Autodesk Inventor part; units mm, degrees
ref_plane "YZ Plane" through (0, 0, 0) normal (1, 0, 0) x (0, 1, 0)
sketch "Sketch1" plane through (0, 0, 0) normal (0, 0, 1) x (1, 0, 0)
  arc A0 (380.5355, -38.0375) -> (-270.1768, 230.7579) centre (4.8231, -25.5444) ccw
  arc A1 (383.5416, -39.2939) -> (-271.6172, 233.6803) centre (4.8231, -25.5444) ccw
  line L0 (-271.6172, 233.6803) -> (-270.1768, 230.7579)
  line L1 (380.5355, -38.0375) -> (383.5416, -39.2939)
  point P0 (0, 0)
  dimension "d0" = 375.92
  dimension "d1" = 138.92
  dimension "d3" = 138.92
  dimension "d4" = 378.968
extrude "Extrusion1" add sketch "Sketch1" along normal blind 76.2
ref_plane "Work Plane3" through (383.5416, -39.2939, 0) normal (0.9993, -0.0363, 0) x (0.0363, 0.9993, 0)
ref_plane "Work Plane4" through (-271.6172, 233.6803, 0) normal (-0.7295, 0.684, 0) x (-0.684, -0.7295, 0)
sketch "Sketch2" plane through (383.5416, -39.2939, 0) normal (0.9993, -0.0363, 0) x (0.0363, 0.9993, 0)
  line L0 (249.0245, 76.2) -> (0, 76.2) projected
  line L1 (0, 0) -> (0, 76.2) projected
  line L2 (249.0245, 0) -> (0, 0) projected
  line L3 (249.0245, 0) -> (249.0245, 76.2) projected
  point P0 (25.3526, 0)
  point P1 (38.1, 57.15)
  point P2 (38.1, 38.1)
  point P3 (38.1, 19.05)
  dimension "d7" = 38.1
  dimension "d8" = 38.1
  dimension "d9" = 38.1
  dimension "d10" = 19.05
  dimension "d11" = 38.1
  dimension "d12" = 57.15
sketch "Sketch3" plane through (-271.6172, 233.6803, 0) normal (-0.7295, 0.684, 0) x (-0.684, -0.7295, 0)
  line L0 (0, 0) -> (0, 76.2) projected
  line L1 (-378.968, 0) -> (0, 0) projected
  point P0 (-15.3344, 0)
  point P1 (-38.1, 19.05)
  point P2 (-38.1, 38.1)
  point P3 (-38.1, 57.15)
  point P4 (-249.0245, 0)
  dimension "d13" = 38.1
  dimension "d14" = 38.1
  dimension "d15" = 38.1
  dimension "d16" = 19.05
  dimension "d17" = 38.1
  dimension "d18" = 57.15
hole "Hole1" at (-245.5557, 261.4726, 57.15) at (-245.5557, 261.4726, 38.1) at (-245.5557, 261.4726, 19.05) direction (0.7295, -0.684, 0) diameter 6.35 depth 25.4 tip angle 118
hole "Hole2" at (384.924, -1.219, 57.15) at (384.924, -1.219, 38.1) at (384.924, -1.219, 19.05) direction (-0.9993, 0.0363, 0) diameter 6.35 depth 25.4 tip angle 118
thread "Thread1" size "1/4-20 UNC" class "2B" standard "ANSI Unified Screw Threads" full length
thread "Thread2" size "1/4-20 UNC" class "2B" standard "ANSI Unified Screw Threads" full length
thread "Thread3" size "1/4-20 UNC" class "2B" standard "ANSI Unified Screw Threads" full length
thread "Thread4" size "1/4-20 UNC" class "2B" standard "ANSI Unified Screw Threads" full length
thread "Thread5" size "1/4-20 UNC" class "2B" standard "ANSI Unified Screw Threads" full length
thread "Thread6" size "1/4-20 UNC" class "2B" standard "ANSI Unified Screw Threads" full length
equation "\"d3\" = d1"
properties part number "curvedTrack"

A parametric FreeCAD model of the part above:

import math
import FreeCAD as App
import Part
import Sketcher
Q = App.Units.Quantity

doc = App.newDocument("Part")
body = doc.addObject("PartDesign::Body", "Body")

sketch1 = doc.addObject("Sketcher::SketchObject", "Sketch")
body.addObject(sketch1)
sketch1.AttachmentSupport = (doc.XY_Plane, [""])
sketch1.MapMode = "FlatFace"
sketch1.addGeometry([
    Part.ArcOfCircle(Part.Circle(App.Vector(4.8, -25.5, 0), App.Vector(0, 0, 1), 375.9), math.radians(-2), math.radians(137)),
    Part.LineSegment(App.Vector(380.5, -38, 0), App.Vector(383.5, -39.3, 0)),
    Part.ArcOfCircle(Part.Circle(App.Vector(4.8, -25.5, 0), App.Vector(0, 0, 1), 379), math.radians(-2), math.radians(137)),
    Part.LineSegment(App.Vector(-271.6, 233.7, 0), App.Vector(-270.2, 230.8, 0)),
], False)
sketch1.addConstraint([
    Sketcher.Constraint("Coincident", 0, 1, 1, 1),
    Sketcher.Constraint("Coincident", 1, 2, 2, 1),
    Sketcher.Constraint("Coincident", 2, 2, 3, 1),
    Sketcher.Constraint("Coincident", 3, 2, 0, 2),
    Sketcher.Constraint("Coincident", 2, 3, 0, 3),
    Sketcher.Constraint("Equal", 1, 3),
    Sketcher.Constraint("Radius", 0, Q("14.8 in")),
    Sketcher.Constraint("Radius", 2, Q("14.92 in")),
    Sketcher.Constraint("DistanceY", 1, 2, -1, 1, Q("1.547 in")),
    Sketcher.Constraint("DistanceX", 2, 2, -1, 1, Q("10.6936 in")),
    Sketcher.Constraint("DistanceX", 3, 2, 0, 1, Q("25.6186 in")),
    Sketcher.Constraint("DistanceY", 0, 1, 3, 2, Q("10.5825 in")),
    Sketcher.Constraint("Distance", 1, Q("3.258 mm")),
])
pad1 = doc.addObject("PartDesign::Pad", "Pad")
body.addObject(pad1)
pad1.Profile = sketch1
pad1.Length = Q("3 in")

sketch2 = doc.addObject("Sketcher::SketchObject", "Sketch001")
body.addObject(sketch2)
sketch2.Placement = App.Placement(App.Vector(-261.139658, 244.851989, 0), App.Rotation(App.Vector(-0.683991023, -0.729490426, 0), App.Vector(0, 0, 1.000000001), App.Vector(-0.729490426, 0.683991023, 0), "ZXY"))
sketch2.addGeometry([
    Part.Circle(App.Vector(-22.8, 57.2, 0), App.Vector(0, 0, 1), 3.2),
    Part.Circle(App.Vector(-22.8, 38.1, 0), App.Vector(0, 0, 1), 3.2),
    Part.Circle(App.Vector(-22.8, 19.1, 0), App.Vector(0, 0, 1), 3.2),
], False)
sketch2.addConstraint([
    Sketcher.Constraint("Equal", 0, 1),
    Sketcher.Constraint("Equal", 1, 2),
    Sketcher.Constraint("Vertical", 0, 3, 1, 3),
    Sketcher.Constraint("Vertical", 1, 3, 2, 3),
    Sketcher.Constraint("Diameter", 0, Q("0.25 in")),
    Sketcher.Constraint("DistanceY", -1, 1, 1, 3, Q("1.5 in")),
    Sketcher.Constraint("DistanceY", 2, 3, 0, 3, Q("1.5 in")),
    Sketcher.Constraint("DistanceY", -1, 1, 0, 3, Q("2.25 in")),
    Sketcher.Constraint("DistanceX", 0, 3, -1, 1, Q("0.897 in")),
])
doc.recompute()
hole = doc.addObject("PartDesign::Hole", "Hole")
body.addObject(hole)
hole.Profile = sketch2
hole.ThreadType = "None"
hole.Diameter = Q("0.25 in")
hole.DepthType = "Dimension"
hole.Depth = Q("1 in")
hole.DrillPoint = "Angled"
hole.DrillPointAngle = 118

sketch3 = doc.addObject("Sketcher::SketchObject", "Sketch002")
body.addObject(sketch3)
sketch3.Placement = App.Placement(App.Vector(384.46097, -13.965709, 0), App.Rotation(App.Vector(0.036301485, 0.999340884, 0), App.Vector(0, 0, 1), App.Vector(0.999340884, -0.036301485, 0), "ZXY"))
sketch3.addGeometry([
    Part.Circle(App.Vector(12.8, 57.2, 0), App.Vector(0, 0, 1), 3.2),
    Part.Circle(App.Vector(12.8, 38.1, 0), App.Vector(0, 0, 1), 3.2),
    Part.Circle(App.Vector(12.8, 19.1, 0), App.Vector(0, 0, 1), 3.2),
], False)
sketch3.addConstraint([
    Sketcher.Constraint("Equal", 0, 1),
    Sketcher.Constraint("Equal", 1, 2),
    Sketcher.Constraint("Vertical", 0, 3, 1, 3),
    Sketcher.Constraint("Vertical", 1, 3, 2, 3),
    Sketcher.Constraint("Diameter", 0, Q("0.25 in")),
    Sketcher.Constraint("DistanceY", -1, 1, 1, 3, Q("1.5 in")),
    Sketcher.Constraint("DistanceY", 2, 3, 0, 3, Q("1.5 in")),
    Sketcher.Constraint("DistanceY", -1, 1, 0, 3, Q("2.25 in")),
    Sketcher.Constraint("DistanceX", -1, 1, 0, 3, Q("12.755 mm")),
])
doc.recompute()
hole2 = doc.addObject("PartDesign::Hole", "Hole001")
body.addObject(hole2)
hole2.Profile = sketch3
hole2.ThreadType = "None"
hole2.Diameter = Q("0.25 in")
hole2.DepthType = "Dimension"
hole2.Depth = Q("1 in")
hole2.DrillPoint = "Angled"
hole2.DrillPointAngle = 118

doc.recompute()
